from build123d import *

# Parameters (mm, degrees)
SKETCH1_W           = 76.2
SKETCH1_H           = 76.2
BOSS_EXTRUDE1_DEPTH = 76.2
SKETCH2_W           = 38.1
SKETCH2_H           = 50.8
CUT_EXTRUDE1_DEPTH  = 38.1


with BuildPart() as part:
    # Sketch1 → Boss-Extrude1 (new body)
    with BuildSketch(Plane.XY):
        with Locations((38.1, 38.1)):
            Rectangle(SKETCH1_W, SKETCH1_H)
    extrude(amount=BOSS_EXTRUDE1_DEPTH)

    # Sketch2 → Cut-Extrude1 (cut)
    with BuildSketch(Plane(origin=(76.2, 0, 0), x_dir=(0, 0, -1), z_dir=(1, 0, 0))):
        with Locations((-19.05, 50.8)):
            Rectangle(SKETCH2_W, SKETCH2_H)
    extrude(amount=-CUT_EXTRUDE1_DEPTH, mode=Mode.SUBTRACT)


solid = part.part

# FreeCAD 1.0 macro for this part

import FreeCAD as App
import Part
import Sketcher
from FreeCAD import Vector
Q = App.Units.Quantity


def add_polygon(sketch, points):
    """Adds a closed chain of lines whose ends are joined by coincident constraints."""
    first, n = sketch.GeometryCount, len(points)
    for a, b in zip(points, points[1:] + points[:1]):
        sketch.addGeometry(Part.LineSegment(App.Vector(*a, 0), App.Vector(*b, 0)), False)
    for i in range(n):
        sketch.addConstraint(Sketcher.Constraint("Coincident", first + i, 2, first + (i + 1) % n, 1))

doc = App.newDocument("Part")
body = doc.addObject("PartDesign::Body", "Body")

sketch1 = doc.addObject("Sketcher::SketchObject", "Sketch")
body.addObject(sketch1)
sketch1.AttachmentSupport = (doc.XY_Plane, [""])
sketch1.MapMode = "FlatFace"
add_polygon(sketch1, [(0, 76), (0, 0), (76, 0), (76, 76)])
sketch1.addConstraint(Sketcher.Constraint("Vertical", 0))
sketch1.addConstraint(Sketcher.Constraint("Horizontal", 1))
sketch1.addConstraint(Sketcher.Constraint("Vertical", 2))
sketch1.addConstraint(Sketcher.Constraint("Horizontal", 3))
sketch1.addConstraint(Sketcher.Constraint("Coincident", 0, 2, -1, 1))
sketch1.addConstraint(Sketcher.Constraint("Equal", 3, 0))
sketch1.addConstraint(Sketcher.Constraint("DistanceX", 1, 1, 1, 2, Q("3 in")))
pad1 = doc.addObject("PartDesign::Pad", "Pad")
body.addObject(pad1)
pad1.Profile = sketch1
pad1.Length = Q("3 in")

sketch2 = doc.addObject("Sketcher::SketchObject", "Sketch001")
body.addObject(sketch2)
sketch2.AttachmentSupport = (doc.YZ_Plane, [""])
sketch2.MapMode = "FlatFace"
sketch2.AttachmentOffset = App.Placement(Vector(0, 0, 3 * 25.4), App.Rotation())
add_polygon(sketch2, [(76, 38), (25, 38), (25, 0), (76, 0)])
sketch2.addConstraint(Sketcher.Constraint("Horizontal", 0))
sketch2.addConstraint(Sketcher.Constraint("Vertical", 1))
sketch2.addConstraint(Sketcher.Constraint("Horizontal", 2))
sketch2.addConstraint(Sketcher.Constraint("Vertical", 3))
sketch2.addConstraint(Sketcher.Constraint("PointOnObject", 1, 2, -1))
sketch2.addConstraint(Sketcher.Constraint("DistanceX", 0, 2, 0, 1, Q("2 in")))
sketch2.addConstraint(Sketcher.Constraint("DistanceY", 1, 2, 1, 1, Q("1.5 in")))
sketch2.addConstraint(Sketcher.Constraint("DistanceX", -1, 1, 0, 2, Q("1 in")))
pocket1 = doc.addObject("PartDesign::Pocket", "Pocket")
body.addObject(pocket1)
pocket1.Profile = sketch2
pocket1.Length = Q("1.5 in")

doc.recompute()
